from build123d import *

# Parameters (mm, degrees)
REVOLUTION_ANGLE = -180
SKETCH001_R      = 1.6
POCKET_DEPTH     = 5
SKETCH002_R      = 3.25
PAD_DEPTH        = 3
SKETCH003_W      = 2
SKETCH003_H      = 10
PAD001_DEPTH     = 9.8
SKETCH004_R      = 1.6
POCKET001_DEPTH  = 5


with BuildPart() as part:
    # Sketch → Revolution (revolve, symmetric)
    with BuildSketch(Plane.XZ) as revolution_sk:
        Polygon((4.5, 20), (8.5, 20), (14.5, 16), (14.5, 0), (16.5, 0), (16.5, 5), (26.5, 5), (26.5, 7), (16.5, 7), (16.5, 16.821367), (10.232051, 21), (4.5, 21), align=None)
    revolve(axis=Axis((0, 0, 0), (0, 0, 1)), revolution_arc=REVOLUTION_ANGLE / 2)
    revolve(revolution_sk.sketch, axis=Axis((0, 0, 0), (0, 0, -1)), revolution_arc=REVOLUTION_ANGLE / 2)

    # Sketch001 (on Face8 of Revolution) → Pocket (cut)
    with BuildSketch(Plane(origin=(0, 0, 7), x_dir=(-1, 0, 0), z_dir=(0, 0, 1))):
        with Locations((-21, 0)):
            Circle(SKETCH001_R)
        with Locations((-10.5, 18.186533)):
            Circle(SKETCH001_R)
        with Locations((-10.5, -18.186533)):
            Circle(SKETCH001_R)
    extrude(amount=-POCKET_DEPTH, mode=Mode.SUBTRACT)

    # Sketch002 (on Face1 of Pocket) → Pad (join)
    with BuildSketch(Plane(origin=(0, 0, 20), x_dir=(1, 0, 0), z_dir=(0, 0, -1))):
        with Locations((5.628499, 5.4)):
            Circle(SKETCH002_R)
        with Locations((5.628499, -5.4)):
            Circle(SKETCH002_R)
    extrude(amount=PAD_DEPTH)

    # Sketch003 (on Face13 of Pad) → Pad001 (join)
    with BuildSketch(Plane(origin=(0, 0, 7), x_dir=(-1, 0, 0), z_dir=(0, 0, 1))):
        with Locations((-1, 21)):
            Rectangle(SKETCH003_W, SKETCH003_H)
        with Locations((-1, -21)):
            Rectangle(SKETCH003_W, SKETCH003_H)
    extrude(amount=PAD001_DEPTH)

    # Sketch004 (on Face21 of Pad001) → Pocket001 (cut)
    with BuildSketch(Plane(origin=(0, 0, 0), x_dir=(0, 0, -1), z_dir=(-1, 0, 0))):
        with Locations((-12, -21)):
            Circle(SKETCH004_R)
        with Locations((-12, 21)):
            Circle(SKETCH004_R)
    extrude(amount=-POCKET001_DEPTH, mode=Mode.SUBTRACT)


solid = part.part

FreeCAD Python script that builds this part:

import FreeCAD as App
import Part
import Sketcher

V = App.Vector
Q = App.Units.Quantity

doc = App.newDocument("Part")
body = doc.addObject("PartDesign::Body", "Body")

# Sketch on XZ plane
sketch1 = body.newObject("Sketcher::SketchObject", "Sketch")
sketch1.AttachmentSupport = (doc.getObject("XZ_Plane"), [""])
sketch1.MapMode = "FlatFace"
sketch1.addGeometry([
    Part.LineSegment(V(4.5, 20, 0), V(8.5, 20, 0)),  # 0
    Part.LineSegment(V(8.5, 20, 0), V(14.5, 16, 0)),  # 1
    Part.LineSegment(V(14.5, 16, 0), V(14.5, 0, 0)),  # 2
    Part.LineSegment(V(14.5, 0, 0), V(16.5, 0, 0)),  # 3
    Part.LineSegment(V(16.5, 0, 0), V(16.5, 5, 0)),  # 4
    Part.LineSegment(V(16.5, 5, 0), V(26.5, 5, 0)),  # 5
    Part.LineSegment(V(26.5, 5, 0), V(26.5, 7, 0)),  # 6
    Part.LineSegment(V(26.5, 7, 0), V(16.5, 7, 0)),  # 7
    Part.LineSegment(V(16.5, 7, 0), V(16.5, 16.8, 0)),  # 8
    Part.LineSegment(V(16.5, 16.8, 0), V(10.2, 21, 0)),  # 9
    Part.LineSegment(V(10.2, 21, 0), V(4.5, 21, 0)),  # 10
    Part.LineSegment(V(4.5, 21, 0), V(4.5, 20, 0)),  # 11
], False)
sketch1.addConstraint([
    Sketcher.Constraint("Coincident", 0, 2, 1, 1),
    Sketcher.Constraint("Coincident", 1, 2, 2, 1),
    Sketcher.Constraint("Coincident", 2, 2, 3, 1),
    Sketcher.Constraint("Coincident", 3, 2, 4, 1),
    Sketcher.Constraint("Coincident", 4, 2, 5, 1),
    Sketcher.Constraint("Coincident", 5, 2, 6, 1),
    Sketcher.Constraint("Coincident", 6, 2, 7, 1),
    Sketcher.Constraint("Coincident", 7, 2, 8, 1),
    Sketcher.Constraint("Coincident", 8, 2, 9, 1),
    Sketcher.Constraint("Coincident", 9, 2, 10, 1),
    Sketcher.Constraint("Coincident", 10, 2, 11, 1),
    Sketcher.Constraint("Coincident", 11, 2, 0, 1),
    Sketcher.Constraint("Horizontal", 0),
    Sketcher.Constraint("Vertical", 2),
    Sketcher.Constraint("Horizontal", 3),
    Sketcher.Constraint("Vertical", 4),
    Sketcher.Constraint("Horizontal", 5),
    Sketcher.Constraint("Vertical", 6),
    Sketcher.Constraint("Horizontal", 7),
    Sketcher.Constraint("Vertical", 8),
    Sketcher.Constraint("Horizontal", 10),
    Sketcher.Constraint("Vertical", 11),
    Sketcher.Constraint("PointOnObject", 2, 2, -1),
    Sketcher.Constraint("Parallel", 1, 9),
    Sketcher.Constraint("Vertical", 4, 2, 7, 2),
    Sketcher.Constraint("Equal", 3, 6),
    Sketcher.Constraint("DistanceX", 0, 1, 0, 2, Q("4 mm")),
    Sketcher.Constraint("DistanceX", 3, 1, 3, 2, Q("2 mm")),
    Sketcher.Constraint("DistanceX", 5, 1, 5, 2, Q("10 mm")),
    Sketcher.Constraint("DistanceY", 2, 2, 2, 1, Q("16 mm")),
    Sketcher.Constraint("DistanceY", 4, 1, 4, 2, Q("5 mm")),
    Sketcher.Constraint("DistanceY", 11, 2, 11, 1, Q("1 mm")),
    Sketcher.Constraint("DistanceY", -1, 1, 0, 2, Q("20 mm")),
    Sketcher.Constraint("DistanceX", 0, 2, 1, 2, Q("6 mm")),
    Sketcher.Constraint("DistanceX", -1, 1, 0, 2, Q("8.5 mm")),
    Sketcher.Constraint("DistanceX", 10, 2, 10, 1, Q("5.732051 mm")),
])
revolution = body.newObject("PartDesign::Revolution", "Revolution")
revolution.Profile = sketch1
revolution.ReferenceAxis = (sketch1, ["V_Axis"])
revolution.Angle = 90
revolution.Reversed = True

# Sketch on XZ plane
sketch2 = body.newObject("Sketcher::SketchObject", "Sketch001")
sketch2.AttachmentSupport = (doc.getObject("XZ_Plane"), [""])
sketch2.MapMode = "FlatFace"
sketch2.addGeometry([
    Part.LineSegment(V(4.5, 20, 0), V(8.5, 20, 0)),  # 0
    Part.LineSegment(V(8.5, 20, 0), V(14.5, 16, 0)),  # 1
    Part.LineSegment(V(14.5, 16, 0), V(14.5, 0, 0)),  # 2
    Part.LineSegment(V(14.5, 0, 0), V(16.5, 0, 0)),  # 3
    Part.LineSegment(V(16.5, 0, 0), V(16.5, 5, 0)),  # 4
    Part.LineSegment(V(16.5, 5, 0), V(26.5, 5, 0)),  # 5
    Part.LineSegment(V(26.5, 5, 0), V(26.5, 7, 0)),  # 6
    Part.LineSegment(V(26.5, 7, 0), V(16.5, 7, 0)),  # 7
    Part.LineSegment(V(16.5, 7, 0), V(16.5, 16.8, 0)),  # 8
    Part.LineSegment(V(16.5, 16.8, 0), V(10.2, 21, 0)),  # 9
    Part.LineSegment(V(10.2, 21, 0), V(4.5, 21, 0)),  # 10
    Part.LineSegment(V(4.5, 21, 0), V(4.5, 20, 0)),  # 11
], False)
sketch2.addConstraint([
    Sketcher.Constraint("Coincident", 0, 2, 1, 1),
    Sketcher.Constraint("Coincident", 1, 2, 2, 1),
    Sketcher.Constraint("Coincident", 2, 2, 3, 1),
    Sketcher.Constraint("Coincident", 3, 2, 4, 1),
    Sketcher.Constraint("Coincident", 4, 2, 5, 1),
    Sketcher.Constraint("Coincident", 5, 2, 6, 1),
    Sketcher.Constraint("Coincident", 6, 2, 7, 1),
    Sketcher.Constraint("Coincident", 7, 2, 8, 1),
    Sketcher.Constraint("Coincident", 8, 2, 9, 1),
    Sketcher.Constraint("Coincident", 9, 2, 10, 1),
    Sketcher.Constraint("Coincident", 10, 2, 11, 1),
    Sketcher.Constraint("Coincident", 11, 2, 0, 1),
    Sketcher.Constraint("Horizontal", 0),
    Sketcher.Constraint("Vertical", 2),
    Sketcher.Constraint("Horizontal", 3),
    Sketcher.Constraint("Vertical", 4),
    Sketcher.Constraint("Horizontal", 5),
    Sketcher.Constraint("Vertical", 6),
    Sketcher.Constraint("Horizontal", 7),
    Sketcher.Constraint("Vertical", 8),
    Sketcher.Constraint("Horizontal", 10),
    Sketcher.Constraint("Vertical", 11),
    Sketcher.Constraint("PointOnObject", 2, 2, -1),
    Sketcher.Constraint("Parallel", 1, 9),
    Sketcher.Constraint("Vertical", 4, 2, 7, 2),
    Sketcher.Constraint("Equal", 3, 6),
    Sketcher.Constraint("DistanceX", 0, 1, 0, 2, Q("4 mm")),
    Sketcher.Constraint("DistanceX", 3, 1, 3, 2, Q("2 mm")),
    Sketcher.Constraint("DistanceX", 5, 1, 5, 2, Q("10 mm")),
    Sketcher.Constraint("DistanceY", 2, 2, 2, 1, Q("16 mm")),
    Sketcher.Constraint("DistanceY", 4, 1, 4, 2, Q("5 mm")),
    Sketcher.Constraint("DistanceY", 11, 2, 11, 1, Q("1 mm")),
    Sketcher.Constraint("DistanceY", -1, 1, 0, 2, Q("20 mm")),
    Sketcher.Constraint("DistanceX", 0, 2, 1, 2, Q("6 mm")),
    Sketcher.Constraint("DistanceX", -1, 1, 0, 2, Q("8.5 mm")),
    Sketcher.Constraint("DistanceX", 10, 2, 10, 1, Q("5.732051 mm")),
])
revolution2 = body.newObject("PartDesign::Revolution", "Revolution001")
revolution2.Profile = sketch2
revolution2.ReferenceAxis = (sketch2, ["V_Axis"])
revolution2.Angle = 90

# Sketch on XY plane
sketch3 = body.newObject("Sketcher::SketchObject", "Sketch002")
sketch3.AttachmentSupport = (doc.getObject("XY_Plane"), [""])
sketch3.MapMode = "FlatFace"
sketch3.AttachmentOffset = App.Placement(V(0, 0, 7), App.Rotation())
sketch3.addGeometry([
    Part.Circle(V(21, 0, 0), V(0, 0, 1), 1.6),
    Part.Circle(V(10.5, -18.2, 0), V(0, 0, 1), 1.6),
    Part.Circle(V(10.5, 18.2, 0), V(0, 0, 1), 1.6),
], False)
sketch3.addConstraint([
    Sketcher.Constraint("Equal", 0, 1),
    Sketcher.Constraint("Equal", 1, 2),
    Sketcher.Constraint("Symmetric", 1, 3, 2, 3, -1),
    Sketcher.Constraint("PointOnObject", 0, 3, -1),
    Sketcher.Constraint("Diameter", 0, Q("3.2 mm")),
    Sketcher.Constraint("DistanceX", -1, 1, 0, 3, Q("21 mm")),
    Sketcher.Constraint("DistanceX", -1, 1, 1, 3, Q("10.5 mm")),
    Sketcher.Constraint("DistanceY", 1, 3, -1, 1, Q("18.186533 mm")),
])
pocket1 = body.newObject("PartDesign::Pocket", "Pocket")
pocket1.Profile = sketch3
pocket1.Length = 5

# Sketch on XY plane
sketch4 = body.newObject("Sketcher::SketchObject", "Sketch003")
sketch4.AttachmentSupport = (doc.getObject("XY_Plane"), [""])
sketch4.MapMode = "FlatFace"
sketch4.AttachmentOffset = App.Placement(V(0, 0, 20), App.Rotation())
sketch4.addGeometry([
    Part.Circle(V(5.6, -5.4, 0), V(0, 0, 1), 3.2),
    Part.Circle(V(5.6, 5.4, 0), V(0, 0, 1), 3.2),
], False)
sketch4.addConstraint([
    Sketcher.Constraint("Equal", 0, 1),
    Sketcher.Constraint("Symmetric", 0, 3, 1, 3, -1),
    Sketcher.Constraint("Diameter", 0, Q("6.5 mm")),
    Sketcher.Constraint("DistanceY", 0, 3, -1, 1, Q("5.4 mm")),
    Sketcher.Constraint("DistanceX", -1, 1, 0, 3, Q("5.628499 mm")),
])
pad1 = body.newObject("PartDesign::Pad", "Pad")
pad1.Profile = sketch4
pad1.Length = 3
pad1.Reversed = True

# Sketch on XY plane
sketch5 = body.newObject("Sketcher::SketchObject", "Sketch004")
sketch5.AttachmentSupport = (doc.getObject("XY_Plane"), [""])
sketch5.MapMode = "FlatFace"
sketch5.AttachmentOffset = App.Placement(V(0, 0, 7), App.Rotation())
sketch5.addGeometry([
    Part.LineSegment(V(2, -26, 0), V(2, -16, 0)),  # 0
    Part.LineSegment(V(2, -16, 0), V(0, -16, 0)),  # 1
    Part.LineSegment(V(0, -16, 0), V(0, -26, 0)),  # 2
    Part.LineSegment(V(0, -26, 0), V(2, -26, 0)),  # 3
    Part.LineSegment(V(2, 16, 0), V(2, 26, 0)),  # 4
    Part.LineSegment(V(2, 26, 0), V(0, 26, 0)),  # 5
    Part.LineSegment(V(0, 26, 0), V(0, 16, 0)),  # 6
    Part.LineSegment(V(0, 16, 0), V(2, 16, 0)),  # 7
], False)
sketch5.addConstraint([
    Sketcher.Constraint("Coincident", 0, 2, 1, 1),
    Sketcher.Constraint("Coincident", 1, 2, 2, 1),
    Sketcher.Constraint("Coincident", 2, 2, 3, 1),
    Sketcher.Constraint("Coincident", 3, 2, 0, 1),
    Sketcher.Constraint("Coincident", 4, 2, 5, 1),
    Sketcher.Constraint("Coincident", 5, 2, 6, 1),
    Sketcher.Constraint("Coincident", 6, 2, 7, 1),
    Sketcher.Constraint("Coincident", 7, 2, 4, 1),
    Sketcher.Constraint("Vertical", 0),
    Sketcher.Constraint("Horizontal", 1),
    Sketcher.Constraint("Vertical", 2),
    Sketcher.Constraint("Horizontal", 3),
    Sketcher.Constraint("Vertical", 4),
    Sketcher.Constraint("Horizontal", 5),
    Sketcher.Constraint("Vertical", 6),
    Sketcher.Constraint("Horizontal", 7),
    Sketcher.Constraint("Symmetric", 2, 2, 5, 2, -1, 1),
    Sketcher.Constraint("Symmetric", 1, 2, 6, 2, -1),
    Sketcher.Constraint("Vertical", 3, 2, 4, 2),
    Sketcher.Constraint("DistanceX", 1, 2, 1, 1, Q("2 mm")),
    Sketcher.Constraint("DistanceY", 0, 1, 0, 2, Q("10 mm")),
    Sketcher.Constraint("DistanceY", 0, 2, -1, 1, Q("16 mm")),
])
pad2 = body.newObject("PartDesign::Pad", "Pad001")
pad2.Profile = sketch5
pad2.Length = 9.8

# Sketch on YZ plane
sketch6 = body.newObject("Sketcher::SketchObject", "Sketch005")
sketch6.AttachmentSupport = (doc.getObject("YZ_Plane"), [""])
sketch6.MapMode = "FlatFace"
sketch6.addGeometry([
    Part.Circle(V(21, 12, 0), V(0, 0, 1), 1.6),
    Part.Circle(V(-21, 12, 0), V(0, 0, 1), 1.6),
], False)
sketch6.addConstraint([
    Sketcher.Constraint("Equal", 0, 1),
    Sketcher.Constraint("Symmetric", 0, 3, 1, 3, -2),
    Sketcher.Constraint("Diameter", 0, Q("3.2 mm")),
    Sketcher.Constraint("DistanceX", -1, 1, 0, 3, Q("21 mm")),
    Sketcher.Constraint("DistanceY", -1, 1, 0, 3, Q("12 mm")),
])
pocket2 = body.newObject("PartDesign::Pocket", "Pocket001")
pocket2.Profile = sketch6
pocket2.Length = 5
pocket2.Reversed = True

doc.recompute()
